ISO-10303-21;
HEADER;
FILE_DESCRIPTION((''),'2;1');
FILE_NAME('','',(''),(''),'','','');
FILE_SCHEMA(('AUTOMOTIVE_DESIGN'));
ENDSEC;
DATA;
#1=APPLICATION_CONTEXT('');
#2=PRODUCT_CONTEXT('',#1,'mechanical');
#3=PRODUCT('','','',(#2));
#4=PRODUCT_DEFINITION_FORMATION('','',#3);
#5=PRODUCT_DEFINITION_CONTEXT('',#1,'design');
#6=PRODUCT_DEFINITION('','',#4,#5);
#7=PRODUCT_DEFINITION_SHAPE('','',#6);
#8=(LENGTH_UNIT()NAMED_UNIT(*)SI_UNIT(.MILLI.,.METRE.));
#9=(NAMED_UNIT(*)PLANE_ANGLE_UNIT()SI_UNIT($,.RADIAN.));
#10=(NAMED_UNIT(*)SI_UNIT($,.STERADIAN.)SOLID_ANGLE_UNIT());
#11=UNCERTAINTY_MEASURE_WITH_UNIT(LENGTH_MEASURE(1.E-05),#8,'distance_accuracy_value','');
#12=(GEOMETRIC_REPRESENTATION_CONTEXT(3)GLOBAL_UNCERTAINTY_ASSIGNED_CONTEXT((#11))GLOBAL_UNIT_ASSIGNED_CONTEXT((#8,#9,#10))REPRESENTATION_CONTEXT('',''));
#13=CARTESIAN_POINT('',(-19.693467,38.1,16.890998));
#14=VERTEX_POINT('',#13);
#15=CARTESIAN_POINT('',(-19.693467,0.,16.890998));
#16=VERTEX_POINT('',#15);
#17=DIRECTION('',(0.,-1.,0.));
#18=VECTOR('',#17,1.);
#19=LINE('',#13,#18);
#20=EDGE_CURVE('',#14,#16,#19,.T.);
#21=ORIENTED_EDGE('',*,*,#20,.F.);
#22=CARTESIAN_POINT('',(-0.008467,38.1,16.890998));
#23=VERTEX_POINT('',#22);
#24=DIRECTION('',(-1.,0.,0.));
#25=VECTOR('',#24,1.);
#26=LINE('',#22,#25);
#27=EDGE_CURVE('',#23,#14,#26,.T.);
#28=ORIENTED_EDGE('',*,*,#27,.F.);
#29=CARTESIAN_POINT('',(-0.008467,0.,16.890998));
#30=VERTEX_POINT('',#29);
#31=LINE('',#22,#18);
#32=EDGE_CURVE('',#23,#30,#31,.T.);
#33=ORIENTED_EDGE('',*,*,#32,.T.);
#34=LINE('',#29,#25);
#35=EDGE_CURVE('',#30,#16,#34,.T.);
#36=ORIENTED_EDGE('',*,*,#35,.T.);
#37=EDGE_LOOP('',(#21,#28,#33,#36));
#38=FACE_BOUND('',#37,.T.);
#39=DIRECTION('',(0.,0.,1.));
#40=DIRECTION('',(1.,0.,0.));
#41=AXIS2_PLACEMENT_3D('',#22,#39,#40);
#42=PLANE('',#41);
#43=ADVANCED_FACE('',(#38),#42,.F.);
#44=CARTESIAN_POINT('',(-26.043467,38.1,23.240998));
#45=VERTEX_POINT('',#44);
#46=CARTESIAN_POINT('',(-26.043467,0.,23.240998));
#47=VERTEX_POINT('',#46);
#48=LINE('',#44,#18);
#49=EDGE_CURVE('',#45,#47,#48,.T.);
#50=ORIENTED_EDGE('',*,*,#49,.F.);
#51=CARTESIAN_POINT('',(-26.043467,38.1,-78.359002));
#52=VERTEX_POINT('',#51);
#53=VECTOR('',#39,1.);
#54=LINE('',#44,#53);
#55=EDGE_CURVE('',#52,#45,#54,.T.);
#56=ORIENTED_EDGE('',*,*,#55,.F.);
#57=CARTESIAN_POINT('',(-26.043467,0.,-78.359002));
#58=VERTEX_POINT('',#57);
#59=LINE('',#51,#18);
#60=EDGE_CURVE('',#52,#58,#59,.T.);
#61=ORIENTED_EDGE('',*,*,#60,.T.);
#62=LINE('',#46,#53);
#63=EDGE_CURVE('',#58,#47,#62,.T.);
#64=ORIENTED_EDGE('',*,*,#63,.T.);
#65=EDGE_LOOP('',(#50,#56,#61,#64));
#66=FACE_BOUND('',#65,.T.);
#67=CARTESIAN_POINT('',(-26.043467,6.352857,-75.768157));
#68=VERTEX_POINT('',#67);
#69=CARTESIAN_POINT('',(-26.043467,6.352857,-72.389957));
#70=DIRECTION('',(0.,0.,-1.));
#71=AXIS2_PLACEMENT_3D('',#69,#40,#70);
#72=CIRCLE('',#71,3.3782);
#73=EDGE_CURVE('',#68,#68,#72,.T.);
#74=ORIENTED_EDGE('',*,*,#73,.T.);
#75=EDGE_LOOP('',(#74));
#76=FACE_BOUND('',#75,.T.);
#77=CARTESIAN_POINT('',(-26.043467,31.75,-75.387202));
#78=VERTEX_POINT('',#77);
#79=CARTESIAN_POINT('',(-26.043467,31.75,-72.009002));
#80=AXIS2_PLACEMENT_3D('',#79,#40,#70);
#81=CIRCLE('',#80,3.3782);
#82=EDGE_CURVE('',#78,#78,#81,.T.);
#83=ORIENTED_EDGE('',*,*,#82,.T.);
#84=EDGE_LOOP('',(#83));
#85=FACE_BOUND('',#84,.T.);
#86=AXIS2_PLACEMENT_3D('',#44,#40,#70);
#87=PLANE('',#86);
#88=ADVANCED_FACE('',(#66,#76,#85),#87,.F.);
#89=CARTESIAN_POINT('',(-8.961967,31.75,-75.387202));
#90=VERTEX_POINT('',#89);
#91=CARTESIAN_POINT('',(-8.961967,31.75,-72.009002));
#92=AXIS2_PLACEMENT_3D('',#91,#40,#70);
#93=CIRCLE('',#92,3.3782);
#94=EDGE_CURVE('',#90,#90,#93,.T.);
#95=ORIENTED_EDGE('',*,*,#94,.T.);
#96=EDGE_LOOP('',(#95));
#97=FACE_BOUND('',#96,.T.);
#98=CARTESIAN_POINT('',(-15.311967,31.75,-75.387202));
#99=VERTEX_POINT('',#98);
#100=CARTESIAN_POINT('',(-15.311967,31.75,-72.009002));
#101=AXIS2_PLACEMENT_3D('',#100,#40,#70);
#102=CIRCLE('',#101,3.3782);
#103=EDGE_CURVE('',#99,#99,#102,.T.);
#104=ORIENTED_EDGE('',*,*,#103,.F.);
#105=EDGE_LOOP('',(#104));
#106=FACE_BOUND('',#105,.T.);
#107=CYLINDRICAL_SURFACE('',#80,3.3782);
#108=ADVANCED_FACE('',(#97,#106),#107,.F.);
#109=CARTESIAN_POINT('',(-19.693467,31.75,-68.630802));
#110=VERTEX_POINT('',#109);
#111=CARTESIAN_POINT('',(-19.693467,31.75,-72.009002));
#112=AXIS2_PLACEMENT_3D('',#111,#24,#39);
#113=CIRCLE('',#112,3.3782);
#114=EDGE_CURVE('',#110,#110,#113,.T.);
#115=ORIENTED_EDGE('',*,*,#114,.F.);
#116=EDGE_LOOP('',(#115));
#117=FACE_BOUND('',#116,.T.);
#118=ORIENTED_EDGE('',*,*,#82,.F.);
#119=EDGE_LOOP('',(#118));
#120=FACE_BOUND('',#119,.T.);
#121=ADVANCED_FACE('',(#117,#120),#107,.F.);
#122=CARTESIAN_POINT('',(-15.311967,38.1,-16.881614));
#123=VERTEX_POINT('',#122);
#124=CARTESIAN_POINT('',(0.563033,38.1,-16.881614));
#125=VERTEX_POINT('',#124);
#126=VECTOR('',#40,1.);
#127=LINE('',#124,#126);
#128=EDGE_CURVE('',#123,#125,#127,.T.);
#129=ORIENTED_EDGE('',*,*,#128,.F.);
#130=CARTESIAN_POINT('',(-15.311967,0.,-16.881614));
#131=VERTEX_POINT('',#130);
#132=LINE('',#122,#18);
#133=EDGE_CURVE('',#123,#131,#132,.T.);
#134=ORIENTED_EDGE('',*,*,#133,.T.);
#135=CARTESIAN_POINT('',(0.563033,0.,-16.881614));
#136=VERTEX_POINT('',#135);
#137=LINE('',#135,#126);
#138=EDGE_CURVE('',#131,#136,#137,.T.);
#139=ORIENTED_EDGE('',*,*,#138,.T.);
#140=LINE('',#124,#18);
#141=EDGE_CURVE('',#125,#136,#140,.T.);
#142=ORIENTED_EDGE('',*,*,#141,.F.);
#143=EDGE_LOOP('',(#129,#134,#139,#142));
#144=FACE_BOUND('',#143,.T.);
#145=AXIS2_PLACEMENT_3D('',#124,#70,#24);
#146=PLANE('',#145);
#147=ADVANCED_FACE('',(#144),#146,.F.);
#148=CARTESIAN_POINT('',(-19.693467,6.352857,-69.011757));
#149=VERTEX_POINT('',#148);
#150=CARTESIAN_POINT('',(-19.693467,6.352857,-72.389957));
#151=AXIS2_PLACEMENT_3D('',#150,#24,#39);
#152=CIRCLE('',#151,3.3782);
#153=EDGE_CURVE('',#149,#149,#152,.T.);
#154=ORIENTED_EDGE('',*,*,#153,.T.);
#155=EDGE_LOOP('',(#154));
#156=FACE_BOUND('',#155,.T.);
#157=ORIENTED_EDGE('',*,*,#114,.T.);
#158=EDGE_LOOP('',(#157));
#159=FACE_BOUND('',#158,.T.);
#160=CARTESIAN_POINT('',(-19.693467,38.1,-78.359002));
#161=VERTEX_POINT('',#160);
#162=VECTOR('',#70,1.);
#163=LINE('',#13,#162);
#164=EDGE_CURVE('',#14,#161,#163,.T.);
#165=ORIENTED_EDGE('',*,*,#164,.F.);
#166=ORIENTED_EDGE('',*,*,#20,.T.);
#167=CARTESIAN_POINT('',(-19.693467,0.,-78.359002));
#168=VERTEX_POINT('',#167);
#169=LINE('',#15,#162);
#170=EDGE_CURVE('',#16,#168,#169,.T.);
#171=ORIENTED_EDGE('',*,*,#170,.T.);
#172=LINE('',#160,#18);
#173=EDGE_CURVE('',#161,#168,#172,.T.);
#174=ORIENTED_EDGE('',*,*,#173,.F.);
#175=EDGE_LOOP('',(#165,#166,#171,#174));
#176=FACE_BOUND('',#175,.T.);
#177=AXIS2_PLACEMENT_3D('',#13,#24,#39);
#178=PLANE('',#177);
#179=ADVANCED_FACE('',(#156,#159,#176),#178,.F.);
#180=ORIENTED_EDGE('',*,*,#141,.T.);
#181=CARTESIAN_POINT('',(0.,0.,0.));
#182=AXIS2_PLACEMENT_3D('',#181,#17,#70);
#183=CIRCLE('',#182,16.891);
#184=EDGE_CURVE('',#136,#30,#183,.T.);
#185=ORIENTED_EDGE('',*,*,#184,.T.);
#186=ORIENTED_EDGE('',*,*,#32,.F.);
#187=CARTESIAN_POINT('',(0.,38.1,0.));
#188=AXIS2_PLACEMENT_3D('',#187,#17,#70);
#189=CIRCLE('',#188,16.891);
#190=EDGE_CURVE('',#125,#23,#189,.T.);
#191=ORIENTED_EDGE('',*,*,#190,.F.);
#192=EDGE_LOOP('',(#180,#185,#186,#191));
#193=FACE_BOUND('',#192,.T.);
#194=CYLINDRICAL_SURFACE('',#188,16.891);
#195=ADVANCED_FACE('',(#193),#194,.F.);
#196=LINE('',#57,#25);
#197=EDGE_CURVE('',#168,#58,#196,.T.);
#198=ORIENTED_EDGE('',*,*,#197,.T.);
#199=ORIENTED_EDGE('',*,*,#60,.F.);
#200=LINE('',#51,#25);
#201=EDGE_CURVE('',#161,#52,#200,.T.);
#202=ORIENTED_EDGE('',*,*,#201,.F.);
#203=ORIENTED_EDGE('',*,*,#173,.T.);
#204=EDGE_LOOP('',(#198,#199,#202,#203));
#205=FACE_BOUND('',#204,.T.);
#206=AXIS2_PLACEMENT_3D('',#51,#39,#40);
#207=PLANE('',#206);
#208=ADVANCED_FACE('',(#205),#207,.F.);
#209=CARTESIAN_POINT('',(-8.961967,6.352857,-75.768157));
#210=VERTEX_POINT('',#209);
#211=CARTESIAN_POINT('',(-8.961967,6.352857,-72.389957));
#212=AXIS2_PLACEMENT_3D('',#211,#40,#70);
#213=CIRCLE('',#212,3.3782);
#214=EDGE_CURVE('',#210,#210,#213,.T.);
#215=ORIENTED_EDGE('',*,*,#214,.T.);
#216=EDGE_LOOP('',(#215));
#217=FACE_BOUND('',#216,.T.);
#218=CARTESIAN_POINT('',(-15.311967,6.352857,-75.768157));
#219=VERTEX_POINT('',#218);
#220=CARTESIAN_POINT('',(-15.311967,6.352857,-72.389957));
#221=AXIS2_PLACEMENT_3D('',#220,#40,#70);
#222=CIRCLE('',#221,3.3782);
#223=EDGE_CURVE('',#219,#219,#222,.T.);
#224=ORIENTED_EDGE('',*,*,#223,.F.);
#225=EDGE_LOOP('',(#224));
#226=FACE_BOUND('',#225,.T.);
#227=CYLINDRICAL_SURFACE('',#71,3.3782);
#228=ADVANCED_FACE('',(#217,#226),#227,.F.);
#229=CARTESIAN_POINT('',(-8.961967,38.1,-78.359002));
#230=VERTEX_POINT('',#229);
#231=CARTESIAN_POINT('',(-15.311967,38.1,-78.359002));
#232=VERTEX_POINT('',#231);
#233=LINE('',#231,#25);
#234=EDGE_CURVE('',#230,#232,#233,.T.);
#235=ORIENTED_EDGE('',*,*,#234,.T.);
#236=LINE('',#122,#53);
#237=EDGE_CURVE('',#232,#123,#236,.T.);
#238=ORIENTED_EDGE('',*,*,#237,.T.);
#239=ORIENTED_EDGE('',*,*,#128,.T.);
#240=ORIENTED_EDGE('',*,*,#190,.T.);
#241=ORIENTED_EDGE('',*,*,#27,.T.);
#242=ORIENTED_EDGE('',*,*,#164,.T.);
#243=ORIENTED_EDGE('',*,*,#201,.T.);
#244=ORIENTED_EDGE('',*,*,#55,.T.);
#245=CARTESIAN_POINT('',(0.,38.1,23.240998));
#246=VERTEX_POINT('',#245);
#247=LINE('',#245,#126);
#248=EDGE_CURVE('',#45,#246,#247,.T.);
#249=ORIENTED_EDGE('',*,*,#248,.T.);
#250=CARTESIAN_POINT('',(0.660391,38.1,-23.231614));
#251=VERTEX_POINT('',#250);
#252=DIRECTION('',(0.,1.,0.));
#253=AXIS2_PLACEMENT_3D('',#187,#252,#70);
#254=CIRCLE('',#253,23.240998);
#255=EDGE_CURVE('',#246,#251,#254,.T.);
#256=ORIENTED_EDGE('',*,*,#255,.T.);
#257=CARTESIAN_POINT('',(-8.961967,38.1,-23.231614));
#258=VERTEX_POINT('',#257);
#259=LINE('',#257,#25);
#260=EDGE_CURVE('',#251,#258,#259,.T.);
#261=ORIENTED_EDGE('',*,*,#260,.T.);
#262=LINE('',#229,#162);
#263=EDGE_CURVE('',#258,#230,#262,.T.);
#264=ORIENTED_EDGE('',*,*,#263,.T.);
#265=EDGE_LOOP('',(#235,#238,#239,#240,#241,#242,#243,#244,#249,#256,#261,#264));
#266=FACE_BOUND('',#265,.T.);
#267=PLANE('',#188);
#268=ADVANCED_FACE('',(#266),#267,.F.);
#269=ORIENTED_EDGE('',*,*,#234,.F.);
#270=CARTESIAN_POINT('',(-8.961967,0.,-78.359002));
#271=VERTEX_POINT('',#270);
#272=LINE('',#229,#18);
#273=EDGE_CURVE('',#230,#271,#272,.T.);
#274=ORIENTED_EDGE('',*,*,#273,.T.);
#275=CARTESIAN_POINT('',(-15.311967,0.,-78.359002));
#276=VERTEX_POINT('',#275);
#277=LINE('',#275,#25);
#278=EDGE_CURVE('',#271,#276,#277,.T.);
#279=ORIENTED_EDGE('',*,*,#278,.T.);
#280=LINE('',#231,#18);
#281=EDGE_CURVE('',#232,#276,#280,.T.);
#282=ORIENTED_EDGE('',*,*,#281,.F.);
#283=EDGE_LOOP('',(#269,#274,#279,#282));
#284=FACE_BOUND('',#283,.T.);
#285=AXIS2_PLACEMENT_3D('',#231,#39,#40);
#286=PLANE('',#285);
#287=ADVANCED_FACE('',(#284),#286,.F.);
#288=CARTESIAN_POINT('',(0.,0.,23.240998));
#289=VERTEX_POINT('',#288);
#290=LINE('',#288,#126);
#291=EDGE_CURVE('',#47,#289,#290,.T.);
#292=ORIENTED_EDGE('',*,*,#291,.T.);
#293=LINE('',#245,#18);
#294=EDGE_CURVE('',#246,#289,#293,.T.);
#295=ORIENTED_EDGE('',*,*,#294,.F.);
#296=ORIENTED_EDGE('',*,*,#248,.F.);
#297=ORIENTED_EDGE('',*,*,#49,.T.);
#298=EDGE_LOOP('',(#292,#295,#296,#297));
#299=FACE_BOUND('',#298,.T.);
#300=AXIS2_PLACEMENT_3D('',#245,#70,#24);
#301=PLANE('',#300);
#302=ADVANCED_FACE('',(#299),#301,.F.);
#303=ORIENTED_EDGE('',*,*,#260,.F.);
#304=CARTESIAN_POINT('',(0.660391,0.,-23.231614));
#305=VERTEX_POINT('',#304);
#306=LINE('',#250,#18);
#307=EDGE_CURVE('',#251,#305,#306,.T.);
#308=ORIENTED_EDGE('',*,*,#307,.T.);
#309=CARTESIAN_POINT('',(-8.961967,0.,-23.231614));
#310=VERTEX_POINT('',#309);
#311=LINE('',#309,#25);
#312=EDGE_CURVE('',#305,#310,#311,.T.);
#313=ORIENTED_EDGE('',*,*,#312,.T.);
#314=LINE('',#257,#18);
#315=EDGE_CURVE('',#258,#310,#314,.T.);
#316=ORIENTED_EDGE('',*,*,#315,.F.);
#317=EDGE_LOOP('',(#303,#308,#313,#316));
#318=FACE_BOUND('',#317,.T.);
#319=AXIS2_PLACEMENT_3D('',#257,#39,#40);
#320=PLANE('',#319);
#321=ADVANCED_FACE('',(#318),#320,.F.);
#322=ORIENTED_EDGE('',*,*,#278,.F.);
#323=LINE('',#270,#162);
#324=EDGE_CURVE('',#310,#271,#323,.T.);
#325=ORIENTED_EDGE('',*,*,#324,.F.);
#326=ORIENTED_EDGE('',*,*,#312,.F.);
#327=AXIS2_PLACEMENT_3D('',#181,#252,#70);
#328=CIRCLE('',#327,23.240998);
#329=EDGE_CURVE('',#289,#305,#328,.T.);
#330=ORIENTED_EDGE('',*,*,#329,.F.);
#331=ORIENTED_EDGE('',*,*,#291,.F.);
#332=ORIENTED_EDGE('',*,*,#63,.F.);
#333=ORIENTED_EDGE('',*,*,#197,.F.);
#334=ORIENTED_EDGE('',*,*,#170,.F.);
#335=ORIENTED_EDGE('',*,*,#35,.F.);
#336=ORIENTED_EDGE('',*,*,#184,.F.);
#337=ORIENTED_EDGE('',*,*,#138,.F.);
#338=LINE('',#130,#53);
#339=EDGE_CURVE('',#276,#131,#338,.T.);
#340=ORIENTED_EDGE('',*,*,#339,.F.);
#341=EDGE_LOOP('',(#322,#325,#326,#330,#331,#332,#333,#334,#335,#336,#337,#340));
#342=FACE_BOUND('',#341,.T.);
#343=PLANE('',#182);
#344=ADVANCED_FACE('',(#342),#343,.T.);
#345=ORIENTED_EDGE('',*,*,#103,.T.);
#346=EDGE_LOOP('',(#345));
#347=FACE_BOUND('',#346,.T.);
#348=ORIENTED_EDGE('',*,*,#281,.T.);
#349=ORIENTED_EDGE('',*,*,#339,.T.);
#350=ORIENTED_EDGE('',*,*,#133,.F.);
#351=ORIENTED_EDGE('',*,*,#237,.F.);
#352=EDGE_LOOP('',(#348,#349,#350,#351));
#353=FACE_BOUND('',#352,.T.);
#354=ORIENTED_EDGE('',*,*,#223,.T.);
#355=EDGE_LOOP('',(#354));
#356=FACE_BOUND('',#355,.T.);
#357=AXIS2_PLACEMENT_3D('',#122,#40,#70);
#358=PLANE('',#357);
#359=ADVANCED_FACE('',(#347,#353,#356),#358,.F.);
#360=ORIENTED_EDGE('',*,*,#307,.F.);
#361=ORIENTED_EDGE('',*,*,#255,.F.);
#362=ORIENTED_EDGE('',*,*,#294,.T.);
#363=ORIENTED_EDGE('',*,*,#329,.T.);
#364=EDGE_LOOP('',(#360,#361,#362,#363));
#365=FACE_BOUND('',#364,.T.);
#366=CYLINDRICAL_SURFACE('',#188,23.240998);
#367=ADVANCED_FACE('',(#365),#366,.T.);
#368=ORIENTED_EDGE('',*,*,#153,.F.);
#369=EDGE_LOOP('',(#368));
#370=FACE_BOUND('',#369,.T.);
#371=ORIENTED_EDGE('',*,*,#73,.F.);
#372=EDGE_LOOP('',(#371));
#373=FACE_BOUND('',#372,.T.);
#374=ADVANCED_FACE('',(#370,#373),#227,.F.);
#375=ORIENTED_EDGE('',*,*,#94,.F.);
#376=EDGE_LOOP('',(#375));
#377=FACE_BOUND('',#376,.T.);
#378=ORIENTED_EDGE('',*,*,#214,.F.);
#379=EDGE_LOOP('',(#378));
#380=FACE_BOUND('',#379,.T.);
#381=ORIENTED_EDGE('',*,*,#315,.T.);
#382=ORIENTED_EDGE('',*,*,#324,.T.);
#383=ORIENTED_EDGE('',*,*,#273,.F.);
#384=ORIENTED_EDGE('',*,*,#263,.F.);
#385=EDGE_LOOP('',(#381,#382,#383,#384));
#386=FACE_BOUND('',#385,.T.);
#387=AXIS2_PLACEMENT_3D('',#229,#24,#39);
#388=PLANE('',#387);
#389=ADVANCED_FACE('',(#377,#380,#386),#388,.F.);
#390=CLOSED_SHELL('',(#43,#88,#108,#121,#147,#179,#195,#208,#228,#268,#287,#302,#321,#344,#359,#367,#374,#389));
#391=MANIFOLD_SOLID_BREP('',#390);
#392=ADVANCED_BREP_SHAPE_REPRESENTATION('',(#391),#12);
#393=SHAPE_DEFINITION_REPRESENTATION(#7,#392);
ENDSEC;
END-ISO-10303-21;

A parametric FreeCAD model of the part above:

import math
import FreeCAD as App
import Part
import Sketcher

V = App.Vector
Q = App.Units.Quantity

doc = App.newDocument("Part")
body = doc.addObject("PartDesign::Body", "Body")

# Sketch on XZ plane
sketch1 = doc.addObject("Sketcher::SketchObject", "Sketch")
body.addObject(sketch1)
sketch1.AttachmentSupport = (doc.XZ_Plane, [""])
sketch1.MapMode = "FlatFace"
sketch1.addGeometry(Part.LineSegment(V(0, 17, 0), V(-20, 17, 0)), False)
sketch1.addGeometry(Part.LineSegment(V(-20, 17, 0), V(-20, -78, 0)), False)
sketch1.addGeometry(Part.LineSegment(V(-20, -78, 0), V(-26, -78, 0)), False)
sketch1.addGeometry(Part.LineSegment(V(-26, -78, 0), V(-26, 23, 0)), False)
sketch1.addGeometry(Part.LineSegment(V(-26, 23, 0), V(0, 23, 0)), False)
sketch1.addGeometry(Part.ArcOfCircle(Part.Circle(V(0, 0, 0), V(0, 0, 1), 23), math.radians(-88), math.radians(90)), False)
sketch1.addGeometry(Part.LineSegment(V(1, -23, 0), V(-9, -23, 0)), False)
sketch1.addGeometry(Part.LineSegment(V(-9, -23, 0), V(-9, -78, 0)), False)
sketch1.addGeometry(Part.LineSegment(V(-9, -78, 0), V(-15, -78, 0)), False)
sketch1.addGeometry(Part.LineSegment(V(-15, -78, 0), V(-15, -17, 0)), False)
sketch1.addGeometry(Part.LineSegment(V(-15, -17, 0), V(1, -17, 0)), False)
sketch1.addGeometry(Part.ArcOfCircle(Part.Circle(V(0, 0, 0), V(0, 0, 1), 17), math.radians(-88), math.radians(90)), False)
sketch1.addConstraint(Sketcher.Constraint("Coincident", 0, 2, 1, 1))
sketch1.addConstraint(Sketcher.Constraint("Coincident", 1, 2, 2, 1))
sketch1.addConstraint(Sketcher.Constraint("Coincident", 2, 2, 3, 1))
sketch1.addConstraint(Sketcher.Constraint("Coincident", 3, 2, 4, 1))
sketch1.addConstraint(Sketcher.Constraint("Tangent", 4, 2, 5, 2))
sketch1.addConstraint(Sketcher.Constraint("Coincident", 5, 1, 6, 1))
sketch1.addConstraint(Sketcher.Constraint("Coincident", 6, 2, 7, 1))
sketch1.addConstraint(Sketcher.Constraint("Coincident", 7, 2, 8, 1))
sketch1.addConstraint(Sketcher.Constraint("Coincident", 8, 2, 9, 1))
sketch1.addConstraint(Sketcher.Constraint("Coincident", 9, 2, 10, 1))
sketch1.addConstraint(Sketcher.Constraint("Coincident", 10, 2, 11, 1))
sketch1.addConstraint(Sketcher.Constraint("Coincident", 11, 2, 0, 1))
sketch1.addConstraint(Sketcher.Constraint("Horizontal", 0))
sketch1.addConstraint(Sketcher.Constraint("Vertical", 1))
sketch1.addConstraint(Sketcher.Constraint("Horizontal", 2))
sketch1.addConstraint(Sketcher.Constraint("Vertical", 3))
sketch1.addConstraint(Sketcher.Constraint("Horizontal", 4))
sketch1.addConstraint(Sketcher.Constraint("Horizontal", 6))
sketch1.addConstraint(Sketcher.Constraint("Vertical", 7))
sketch1.addConstraint(Sketcher.Constraint("Horizontal", 8))
sketch1.addConstraint(Sketcher.Constraint("Vertical", 9))
sketch1.addConstraint(Sketcher.Constraint("Horizontal", 10))
sketch1.addConstraint(Sketcher.Constraint("Coincident", 5, 3, -1, 1))
sketch1.addConstraint(Sketcher.Constraint("Coincident", 11, 3, -1, 1))
sketch1.addConstraint(Sketcher.Constraint("Horizontal", 2, 2, 7, 2))
sketch1.addConstraint(Sketcher.Constraint("Equal", 2, 8))
sketch1.addConstraint(Sketcher.Constraint("DistanceY", 3, 1, 3, 2, Q("4 in")))
sketch1.addConstraint(Sketcher.Constraint("Radius", 5, Q("0.9149999 in")))
sketch1.addConstraint(Sketcher.Constraint("Radius", 11, Q("0.665 in")))
sketch1.addConstraint(Sketcher.Constraint("DistanceX", 2, 2, 2, 1, Q("0.25 in")))
sketch1.addConstraint(Sketcher.Constraint("DistanceX", 0, 2, 0, 1, Q("0.775 in")))
sketch1.addConstraint(Sketcher.Constraint("DistanceX", 10, 1, 10, 2, Q("0.625 in")))
sketch1.addConstraint(Sketcher.Constraint("DistanceY", 6, 2, 9, 2, Q("0.25 in")))
sketch1.addConstraint(Sketcher.Constraint("DistanceX", 0, 2, 6, 2, Q("0.4225 in")))
sketch1.addConstraint(Sketcher.Constraint("DistanceY", 7, 2, 7, 1, 55.127389))
pad1 = doc.addObject("PartDesign::Pad", "Pad")
body.addObject(pad1)
pad1.Profile = sketch1
pad1.Length = Q("1.5 in")
pad1.Reversed = True

# Sketch on YZ plane
sketch2 = doc.addObject("Sketcher::SketchObject", "Sketch001")
body.addObject(sketch2)
sketch2.AttachmentSupport = (doc.YZ_Plane, [""])
sketch2.MapMode = "FlatFace"
sketch2.AttachmentOffset = App.Placement(V(0, 0, -8.961967), App.Rotation())
sketch2.addGeometry(Part.Circle(V(31.8, -72, 0), V(0, 0, 1), 3.4), False)
sketch2.addGeometry(Part.Circle(V(6.4, -72.4, 0), V(0, 0, 1), 3.4), False)
sketch2.addConstraint(Sketcher.Constraint("Equal", 0, 1))
sketch2.addConstraint(Sketcher.Constraint("Diameter", 0, Q("0.266 in")))
sketch2.addConstraint(Sketcher.Constraint("DistanceX", -1, 1, 0, 3, Q("1.25 in")))
sketch2.addConstraint(Sketcher.Constraint("DistanceY", 0, 3, -1, 1, Q("2.8350001 in")))
sketch2.addConstraint(Sketcher.Constraint("DistanceX", -1, 1, 1, 3, 6.352857))
sketch2.addConstraint(Sketcher.Constraint("DistanceY", 1, 3, -1, 1, 72.389957))
pocket1 = doc.addObject("PartDesign::Pocket", "Pocket")
body.addObject(pocket1)
pocket1.Profile = sketch2
pocket1.Type = "ThroughAll"

doc.recompute()
